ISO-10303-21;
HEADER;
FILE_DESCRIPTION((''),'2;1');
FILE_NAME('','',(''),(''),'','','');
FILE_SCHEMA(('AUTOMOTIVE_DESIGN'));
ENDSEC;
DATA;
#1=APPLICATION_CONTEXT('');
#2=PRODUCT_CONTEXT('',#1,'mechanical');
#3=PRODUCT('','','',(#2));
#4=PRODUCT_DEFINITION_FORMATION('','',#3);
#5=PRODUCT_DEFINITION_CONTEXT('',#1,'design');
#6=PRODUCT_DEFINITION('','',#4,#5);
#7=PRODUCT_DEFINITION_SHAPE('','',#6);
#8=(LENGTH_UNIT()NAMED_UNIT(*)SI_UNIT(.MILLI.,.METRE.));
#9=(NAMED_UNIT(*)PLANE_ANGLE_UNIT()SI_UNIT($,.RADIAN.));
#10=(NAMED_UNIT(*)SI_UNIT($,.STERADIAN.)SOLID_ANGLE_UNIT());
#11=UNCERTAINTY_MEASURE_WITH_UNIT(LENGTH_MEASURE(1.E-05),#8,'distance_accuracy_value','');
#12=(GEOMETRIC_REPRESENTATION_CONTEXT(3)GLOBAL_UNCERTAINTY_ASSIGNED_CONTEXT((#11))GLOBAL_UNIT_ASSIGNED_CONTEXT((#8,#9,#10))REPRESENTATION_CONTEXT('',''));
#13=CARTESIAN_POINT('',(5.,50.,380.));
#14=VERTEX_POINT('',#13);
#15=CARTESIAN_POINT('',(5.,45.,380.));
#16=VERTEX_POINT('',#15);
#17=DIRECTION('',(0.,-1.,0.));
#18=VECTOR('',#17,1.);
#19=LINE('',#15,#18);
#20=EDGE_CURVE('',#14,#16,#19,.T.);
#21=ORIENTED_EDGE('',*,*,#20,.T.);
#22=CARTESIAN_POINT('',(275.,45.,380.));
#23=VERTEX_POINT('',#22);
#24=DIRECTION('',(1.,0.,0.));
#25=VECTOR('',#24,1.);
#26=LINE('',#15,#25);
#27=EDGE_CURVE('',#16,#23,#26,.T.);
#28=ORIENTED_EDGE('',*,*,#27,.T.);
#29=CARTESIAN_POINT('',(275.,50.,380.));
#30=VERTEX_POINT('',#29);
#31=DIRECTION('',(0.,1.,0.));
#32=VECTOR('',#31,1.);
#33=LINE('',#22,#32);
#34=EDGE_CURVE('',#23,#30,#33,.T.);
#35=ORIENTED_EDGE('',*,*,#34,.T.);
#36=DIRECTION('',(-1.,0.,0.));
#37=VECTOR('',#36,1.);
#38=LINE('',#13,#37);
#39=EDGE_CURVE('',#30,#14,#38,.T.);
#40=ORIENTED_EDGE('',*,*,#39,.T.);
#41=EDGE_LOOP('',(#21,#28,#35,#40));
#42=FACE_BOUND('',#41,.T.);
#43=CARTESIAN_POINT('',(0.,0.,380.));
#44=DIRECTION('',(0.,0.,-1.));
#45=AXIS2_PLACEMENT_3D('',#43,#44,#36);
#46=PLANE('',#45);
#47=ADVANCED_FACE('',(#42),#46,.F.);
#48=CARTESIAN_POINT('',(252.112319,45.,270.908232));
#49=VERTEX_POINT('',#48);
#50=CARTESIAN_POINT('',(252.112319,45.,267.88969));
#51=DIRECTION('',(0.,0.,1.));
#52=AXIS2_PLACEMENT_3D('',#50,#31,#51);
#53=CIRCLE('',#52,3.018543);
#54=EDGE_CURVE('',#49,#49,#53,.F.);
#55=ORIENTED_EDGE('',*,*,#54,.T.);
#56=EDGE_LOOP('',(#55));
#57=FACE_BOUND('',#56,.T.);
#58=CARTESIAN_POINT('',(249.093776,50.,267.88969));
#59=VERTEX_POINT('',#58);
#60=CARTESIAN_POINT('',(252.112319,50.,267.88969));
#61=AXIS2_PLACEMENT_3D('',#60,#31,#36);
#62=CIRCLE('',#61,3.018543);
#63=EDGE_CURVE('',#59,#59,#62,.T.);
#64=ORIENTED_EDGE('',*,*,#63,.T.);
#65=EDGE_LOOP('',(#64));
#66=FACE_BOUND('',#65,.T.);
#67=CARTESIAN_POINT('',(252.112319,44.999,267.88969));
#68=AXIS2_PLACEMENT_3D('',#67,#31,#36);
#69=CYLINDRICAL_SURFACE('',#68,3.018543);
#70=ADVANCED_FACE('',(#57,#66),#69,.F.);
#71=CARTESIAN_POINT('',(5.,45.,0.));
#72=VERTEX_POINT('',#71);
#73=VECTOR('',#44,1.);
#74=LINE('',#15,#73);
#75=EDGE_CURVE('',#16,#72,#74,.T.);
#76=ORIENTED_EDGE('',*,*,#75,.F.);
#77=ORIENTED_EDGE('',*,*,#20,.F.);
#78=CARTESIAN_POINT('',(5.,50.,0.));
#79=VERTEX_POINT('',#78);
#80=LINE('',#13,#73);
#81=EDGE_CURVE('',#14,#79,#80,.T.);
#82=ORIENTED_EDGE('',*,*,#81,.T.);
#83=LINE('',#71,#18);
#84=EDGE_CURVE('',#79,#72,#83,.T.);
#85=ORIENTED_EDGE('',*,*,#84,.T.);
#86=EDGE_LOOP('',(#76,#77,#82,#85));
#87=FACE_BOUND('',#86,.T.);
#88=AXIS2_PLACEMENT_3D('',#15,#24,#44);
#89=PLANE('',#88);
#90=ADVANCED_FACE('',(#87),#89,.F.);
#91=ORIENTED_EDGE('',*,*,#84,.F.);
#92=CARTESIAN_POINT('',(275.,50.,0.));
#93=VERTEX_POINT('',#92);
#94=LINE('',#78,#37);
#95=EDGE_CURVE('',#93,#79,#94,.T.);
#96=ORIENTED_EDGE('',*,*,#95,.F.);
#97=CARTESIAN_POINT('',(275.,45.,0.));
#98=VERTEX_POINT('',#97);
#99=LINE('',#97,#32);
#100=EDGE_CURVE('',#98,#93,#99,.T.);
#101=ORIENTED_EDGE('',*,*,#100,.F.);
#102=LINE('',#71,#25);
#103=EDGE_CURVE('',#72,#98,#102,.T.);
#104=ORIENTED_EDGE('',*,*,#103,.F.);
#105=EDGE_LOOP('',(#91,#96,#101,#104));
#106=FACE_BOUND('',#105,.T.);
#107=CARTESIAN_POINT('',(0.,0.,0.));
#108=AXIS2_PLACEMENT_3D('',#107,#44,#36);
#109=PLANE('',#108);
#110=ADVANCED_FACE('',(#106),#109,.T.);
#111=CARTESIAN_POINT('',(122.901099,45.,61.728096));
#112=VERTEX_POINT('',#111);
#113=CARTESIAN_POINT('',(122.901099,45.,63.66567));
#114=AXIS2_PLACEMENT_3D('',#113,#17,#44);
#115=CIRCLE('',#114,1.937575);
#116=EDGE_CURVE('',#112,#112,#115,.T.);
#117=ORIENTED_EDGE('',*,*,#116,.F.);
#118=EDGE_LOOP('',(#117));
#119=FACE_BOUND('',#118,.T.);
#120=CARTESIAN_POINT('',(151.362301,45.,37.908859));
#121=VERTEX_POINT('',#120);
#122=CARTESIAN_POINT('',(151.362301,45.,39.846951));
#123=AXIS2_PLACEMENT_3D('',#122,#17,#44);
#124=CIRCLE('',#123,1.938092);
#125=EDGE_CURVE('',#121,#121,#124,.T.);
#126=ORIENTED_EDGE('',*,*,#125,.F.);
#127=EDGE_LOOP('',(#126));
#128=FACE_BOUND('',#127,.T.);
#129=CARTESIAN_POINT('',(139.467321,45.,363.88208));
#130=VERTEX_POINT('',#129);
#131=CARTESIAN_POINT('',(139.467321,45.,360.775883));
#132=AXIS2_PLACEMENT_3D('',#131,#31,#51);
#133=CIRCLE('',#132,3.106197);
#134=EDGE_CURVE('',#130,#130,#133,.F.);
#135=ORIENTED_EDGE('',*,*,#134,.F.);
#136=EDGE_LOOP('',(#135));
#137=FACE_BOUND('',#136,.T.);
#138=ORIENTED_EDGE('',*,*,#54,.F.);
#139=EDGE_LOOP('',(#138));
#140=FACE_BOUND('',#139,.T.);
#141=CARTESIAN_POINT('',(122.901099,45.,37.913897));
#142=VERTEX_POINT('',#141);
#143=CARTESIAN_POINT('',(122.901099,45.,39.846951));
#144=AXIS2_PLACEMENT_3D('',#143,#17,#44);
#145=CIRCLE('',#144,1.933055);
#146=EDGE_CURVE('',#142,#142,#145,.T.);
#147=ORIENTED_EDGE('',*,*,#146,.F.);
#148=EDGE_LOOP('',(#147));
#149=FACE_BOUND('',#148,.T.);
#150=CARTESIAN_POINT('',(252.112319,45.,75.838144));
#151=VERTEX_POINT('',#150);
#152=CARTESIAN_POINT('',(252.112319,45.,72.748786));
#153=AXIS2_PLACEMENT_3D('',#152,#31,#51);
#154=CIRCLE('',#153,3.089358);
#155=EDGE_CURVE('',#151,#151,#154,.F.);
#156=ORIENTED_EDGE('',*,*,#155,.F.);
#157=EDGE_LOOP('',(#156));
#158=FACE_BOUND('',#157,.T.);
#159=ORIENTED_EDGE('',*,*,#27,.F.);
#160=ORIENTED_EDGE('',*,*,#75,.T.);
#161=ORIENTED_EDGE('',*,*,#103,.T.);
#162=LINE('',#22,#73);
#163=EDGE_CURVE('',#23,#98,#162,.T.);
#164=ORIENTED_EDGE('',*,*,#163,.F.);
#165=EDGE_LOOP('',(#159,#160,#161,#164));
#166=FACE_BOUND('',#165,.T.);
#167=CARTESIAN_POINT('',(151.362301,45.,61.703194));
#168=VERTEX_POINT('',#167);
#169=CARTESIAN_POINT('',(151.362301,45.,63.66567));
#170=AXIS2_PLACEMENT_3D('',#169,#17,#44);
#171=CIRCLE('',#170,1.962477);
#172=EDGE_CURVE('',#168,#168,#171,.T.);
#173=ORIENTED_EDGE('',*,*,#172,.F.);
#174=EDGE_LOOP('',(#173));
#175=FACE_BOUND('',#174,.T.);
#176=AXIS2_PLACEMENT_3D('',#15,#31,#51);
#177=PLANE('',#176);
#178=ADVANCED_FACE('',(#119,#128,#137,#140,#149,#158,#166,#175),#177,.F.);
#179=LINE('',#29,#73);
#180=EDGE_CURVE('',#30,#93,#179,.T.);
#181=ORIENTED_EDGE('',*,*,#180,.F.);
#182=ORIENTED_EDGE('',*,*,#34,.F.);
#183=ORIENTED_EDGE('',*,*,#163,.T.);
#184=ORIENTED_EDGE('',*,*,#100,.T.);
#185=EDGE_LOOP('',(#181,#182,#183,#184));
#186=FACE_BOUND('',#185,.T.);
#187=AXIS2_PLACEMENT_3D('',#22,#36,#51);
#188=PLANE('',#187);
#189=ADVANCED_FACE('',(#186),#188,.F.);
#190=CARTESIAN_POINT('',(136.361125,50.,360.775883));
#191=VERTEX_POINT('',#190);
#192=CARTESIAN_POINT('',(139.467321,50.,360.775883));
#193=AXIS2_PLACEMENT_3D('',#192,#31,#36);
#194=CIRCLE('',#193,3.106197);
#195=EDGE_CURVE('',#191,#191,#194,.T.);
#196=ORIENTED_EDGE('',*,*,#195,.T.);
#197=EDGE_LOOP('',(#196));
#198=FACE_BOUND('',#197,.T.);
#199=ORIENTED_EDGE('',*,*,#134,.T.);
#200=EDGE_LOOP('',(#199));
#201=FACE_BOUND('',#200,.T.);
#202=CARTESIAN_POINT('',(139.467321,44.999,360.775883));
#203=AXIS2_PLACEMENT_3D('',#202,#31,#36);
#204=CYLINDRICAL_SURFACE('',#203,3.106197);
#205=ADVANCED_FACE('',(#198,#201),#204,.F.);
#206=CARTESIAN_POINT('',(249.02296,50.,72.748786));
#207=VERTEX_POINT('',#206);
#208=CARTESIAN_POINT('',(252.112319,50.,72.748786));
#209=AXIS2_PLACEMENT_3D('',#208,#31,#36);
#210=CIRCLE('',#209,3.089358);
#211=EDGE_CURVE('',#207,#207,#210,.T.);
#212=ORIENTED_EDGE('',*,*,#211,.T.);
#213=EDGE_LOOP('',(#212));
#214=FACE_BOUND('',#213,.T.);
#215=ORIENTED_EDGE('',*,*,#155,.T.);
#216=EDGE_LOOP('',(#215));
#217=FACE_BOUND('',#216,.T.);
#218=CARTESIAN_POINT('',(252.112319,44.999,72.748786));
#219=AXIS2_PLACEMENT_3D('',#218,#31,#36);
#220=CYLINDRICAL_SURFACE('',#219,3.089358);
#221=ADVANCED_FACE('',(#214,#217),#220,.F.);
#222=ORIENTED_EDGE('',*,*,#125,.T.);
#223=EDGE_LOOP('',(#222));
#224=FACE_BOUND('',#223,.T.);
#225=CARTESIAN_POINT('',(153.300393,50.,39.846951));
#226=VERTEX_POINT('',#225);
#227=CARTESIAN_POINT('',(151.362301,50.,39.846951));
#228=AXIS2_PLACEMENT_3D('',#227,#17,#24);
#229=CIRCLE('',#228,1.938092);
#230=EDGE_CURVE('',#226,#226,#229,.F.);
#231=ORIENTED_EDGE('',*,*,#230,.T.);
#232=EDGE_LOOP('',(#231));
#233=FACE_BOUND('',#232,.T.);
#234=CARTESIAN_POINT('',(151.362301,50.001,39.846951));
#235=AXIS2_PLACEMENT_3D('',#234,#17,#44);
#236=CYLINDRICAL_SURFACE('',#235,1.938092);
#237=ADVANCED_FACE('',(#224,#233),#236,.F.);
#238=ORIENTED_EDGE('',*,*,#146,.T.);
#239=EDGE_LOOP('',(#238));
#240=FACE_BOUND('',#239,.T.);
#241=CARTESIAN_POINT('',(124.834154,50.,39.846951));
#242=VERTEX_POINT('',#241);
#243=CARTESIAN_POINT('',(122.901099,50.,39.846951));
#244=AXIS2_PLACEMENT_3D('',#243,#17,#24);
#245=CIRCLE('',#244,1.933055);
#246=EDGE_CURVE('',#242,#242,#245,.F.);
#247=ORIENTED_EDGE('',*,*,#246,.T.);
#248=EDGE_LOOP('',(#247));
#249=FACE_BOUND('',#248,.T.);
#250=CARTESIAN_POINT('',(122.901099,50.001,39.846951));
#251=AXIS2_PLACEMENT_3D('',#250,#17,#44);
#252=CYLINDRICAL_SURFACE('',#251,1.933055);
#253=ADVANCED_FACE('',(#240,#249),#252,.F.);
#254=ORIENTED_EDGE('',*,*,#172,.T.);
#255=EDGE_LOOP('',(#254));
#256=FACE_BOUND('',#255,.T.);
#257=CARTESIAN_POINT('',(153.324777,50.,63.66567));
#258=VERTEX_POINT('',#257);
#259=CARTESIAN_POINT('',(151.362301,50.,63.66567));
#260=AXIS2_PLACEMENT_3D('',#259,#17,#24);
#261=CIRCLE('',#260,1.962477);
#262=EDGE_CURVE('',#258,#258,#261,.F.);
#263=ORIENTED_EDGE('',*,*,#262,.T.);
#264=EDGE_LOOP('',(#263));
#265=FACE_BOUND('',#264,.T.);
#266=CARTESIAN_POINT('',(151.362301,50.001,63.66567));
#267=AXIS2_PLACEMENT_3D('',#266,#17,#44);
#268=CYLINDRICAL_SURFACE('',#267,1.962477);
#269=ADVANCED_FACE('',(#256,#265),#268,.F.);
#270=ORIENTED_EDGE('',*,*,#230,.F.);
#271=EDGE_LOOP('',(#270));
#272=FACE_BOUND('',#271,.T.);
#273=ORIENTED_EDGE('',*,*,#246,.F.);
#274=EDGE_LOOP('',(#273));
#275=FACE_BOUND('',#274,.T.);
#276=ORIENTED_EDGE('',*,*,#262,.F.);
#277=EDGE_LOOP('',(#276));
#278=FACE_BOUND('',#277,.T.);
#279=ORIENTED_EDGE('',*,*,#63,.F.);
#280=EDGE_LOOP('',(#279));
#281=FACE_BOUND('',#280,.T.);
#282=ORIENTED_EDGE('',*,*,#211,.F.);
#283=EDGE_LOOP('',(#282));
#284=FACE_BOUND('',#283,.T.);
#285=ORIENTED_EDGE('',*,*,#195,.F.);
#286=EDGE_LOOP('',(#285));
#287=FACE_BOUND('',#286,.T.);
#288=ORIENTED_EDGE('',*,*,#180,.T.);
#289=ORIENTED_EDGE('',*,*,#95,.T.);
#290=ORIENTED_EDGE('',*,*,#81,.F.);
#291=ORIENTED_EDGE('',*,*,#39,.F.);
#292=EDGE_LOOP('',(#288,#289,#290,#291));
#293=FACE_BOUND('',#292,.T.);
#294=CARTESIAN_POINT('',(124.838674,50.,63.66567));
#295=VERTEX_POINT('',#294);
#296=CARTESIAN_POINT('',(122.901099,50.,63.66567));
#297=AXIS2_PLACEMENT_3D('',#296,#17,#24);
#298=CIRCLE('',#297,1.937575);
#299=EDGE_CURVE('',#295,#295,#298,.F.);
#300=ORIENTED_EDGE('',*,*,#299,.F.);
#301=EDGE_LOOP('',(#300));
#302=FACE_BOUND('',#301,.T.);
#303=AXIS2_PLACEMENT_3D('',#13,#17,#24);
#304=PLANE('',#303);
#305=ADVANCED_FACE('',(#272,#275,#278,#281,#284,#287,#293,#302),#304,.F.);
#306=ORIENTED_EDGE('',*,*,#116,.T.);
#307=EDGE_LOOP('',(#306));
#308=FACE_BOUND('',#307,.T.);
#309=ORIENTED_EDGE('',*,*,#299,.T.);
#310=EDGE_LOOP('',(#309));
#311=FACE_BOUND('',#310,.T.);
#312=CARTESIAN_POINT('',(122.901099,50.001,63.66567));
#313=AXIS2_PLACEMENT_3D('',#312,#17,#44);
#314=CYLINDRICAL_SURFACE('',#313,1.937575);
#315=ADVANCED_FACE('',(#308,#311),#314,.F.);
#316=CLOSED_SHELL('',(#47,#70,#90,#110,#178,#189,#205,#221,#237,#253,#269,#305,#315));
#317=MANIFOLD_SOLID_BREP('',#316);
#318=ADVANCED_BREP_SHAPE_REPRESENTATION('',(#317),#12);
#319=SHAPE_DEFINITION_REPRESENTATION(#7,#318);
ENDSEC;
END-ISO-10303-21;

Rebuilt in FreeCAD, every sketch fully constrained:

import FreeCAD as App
import Part
import Sketcher

V = App.Vector

doc = App.newDocument("Part")
params = doc.addObject("Spreadsheet::Sheet", "Params")
for row, (alias, value) in enumerate([
    ("sketch1_width", "270 mm"),
    ("sketch1_height", "5 mm"),
    ("pad1_length", "380 mm"),
], start=1):
    params.set(f"A{row}", alias)
    params.set(f"B{row}", "=" + value)
    params.setAlias(f"B{row}", alias)

body = doc.addObject("PartDesign::Body", "Body")

# Sketch on XY plane
sketch1 = body.newObject("Sketcher::SketchObject", "Sketch")
sketch1.AttachmentSupport = (doc.getObject("XY_Plane"), [""])
sketch1.MapMode = "FlatFace"
sketch1.addGeometry([
    Part.LineSegment(V(5, 50, 0), V(5, 45, 0)),
    Part.LineSegment(V(5, 45, 0), V(275, 45, 0)),
    Part.LineSegment(V(275, 45, 0), V(275, 50, 0)),
    Part.LineSegment(V(275, 50, 0), V(5, 50, 0)),
], False)
sketch1.addConstraint([
    Sketcher.Constraint("Coincident", 0, 2, 1, 1),
    Sketcher.Constraint("Coincident", 1, 2, 2, 1),
    Sketcher.Constraint("Coincident", 2, 2, 3, 1),
    Sketcher.Constraint("Coincident", 3, 2, 0, 1),
    Sketcher.Constraint("Vertical", 0),
    Sketcher.Constraint("Horizontal", 1),
    Sketcher.Constraint("Vertical", 2),
    Sketcher.Constraint("Horizontal", 3),
    Sketcher.Constraint("DistanceX", 1, 1, 1, 2, 270.0),
    Sketcher.Constraint("DistanceY", 0, 2, 0, 1, 5.0),
    Sketcher.Constraint("DistanceX", -1, 1, 0, 2, 5.0),
    Sketcher.Constraint("DistanceY", -1, 1, 0, 2, 45.0),
])
sketch1.setExpression("Constraints[8]", "Params.sketch1_width")
sketch1.setExpression("Constraints[9]", "Params.sketch1_height")
pad1 = body.newObject("PartDesign::Pad", "Pad")
pad1.Profile = sketch1
pad1.setExpression("Length", "Params.pad1_length")

# Sketch on XZ plane
sketch2 = body.newObject("Sketcher::SketchObject", "Sketch001")
sketch2.AttachmentSupport = (doc.getObject("XZ_Plane"), [""])
sketch2.MapMode = "FlatFace"
sketch2.AttachmentOffset = App.Placement(V(0, 0, -45), App.Rotation())
sketch2.addGeometry(Part.Circle(V(122.901099, 39.846951, 0), V(0, 0, 1), 1.933055), False)
sketch2.addConstraint([
    Sketcher.Constraint("Diameter", 0, 3.866109),
    Sketcher.Constraint("DistanceX", -1, 1, 0, 3, 122.901099),
    Sketcher.Constraint("DistanceY", -1, 1, 0, 3, 39.846951),
])
pocket1 = body.newObject("PartDesign::Pocket", "Pocket")
pocket1.Profile = sketch2
pocket1.Type = "UpToFirst"

# Sketch on XZ plane
sketch3 = body.newObject("Sketcher::SketchObject", "Sketch002")
sketch3.AttachmentSupport = (doc.getObject("XZ_Plane"), [""])
sketch3.MapMode = "FlatFace"
sketch3.AttachmentOffset = App.Placement(V(0, 0, -45), App.Rotation())
sketch3.addGeometry(Part.Circle(V(122.901099, 63.66567, 0), V(0, 0, 1), 1.937575), False)
sketch3.addConstraint([
    Sketcher.Constraint("Diameter", 0, 3.875149),
    Sketcher.Constraint("DistanceX", -1, 1, 0, 3, 122.901099),
    Sketcher.Constraint("DistanceY", -1, 1, 0, 3, 63.66567),
])
pocket2 = body.newObject("PartDesign::Pocket", "Pocket001")
pocket2.Profile = sketch3
pocket2.Type = "UpToFirst"

# Sketch on XZ plane
sketch4 = body.newObject("Sketcher::SketchObject", "Sketch003")
sketch4.AttachmentSupport = (doc.getObject("XZ_Plane"), [""])
sketch4.MapMode = "FlatFace"
sketch4.AttachmentOffset = App.Placement(V(0, 0, -45), App.Rotation())
sketch4.addGeometry(Part.Circle(V(151.362301, 39.846951, 0), V(0, 0, 1), 1.938092), False)
sketch4.addConstraint([
    Sketcher.Constraint("Diameter", 0, 3.876185),
    Sketcher.Constraint("DistanceX", -1, 1, 0, 3, 151.362301),
    Sketcher.Constraint("DistanceY", -1, 1, 0, 3, 39.846951),
])
pocket3 = body.newObject("PartDesign::Pocket", "Pocket002")
pocket3.Profile = sketch4
pocket3.Type = "UpToFirst"

# Sketch on XZ plane
sketch5 = body.newObject("Sketcher::SketchObject", "Sketch004")
sketch5.AttachmentSupport = (doc.getObject("XZ_Plane"), [""])
sketch5.MapMode = "FlatFace"
sketch5.AttachmentOffset = App.Placement(V(0, 0, -45), App.Rotation())
sketch5.addGeometry(Part.Circle(V(151.362301, 63.66567, 0), V(0, 0, 1), 1.962477), False)
sketch5.addConstraint([
    Sketcher.Constraint("Diameter", 0, 3.924953),
    Sketcher.Constraint("DistanceX", -1, 1, 0, 3, 151.362301),
    Sketcher.Constraint("DistanceY", -1, 1, 0, 3, 63.66567),
])
pocket4 = body.newObject("PartDesign::Pocket", "Pocket003")
pocket4.Profile = sketch5
pocket4.Type = "UpToFirst"

# Sketch on XZ plane
sketch6 = body.newObject("Sketcher::SketchObject", "Sketch005")
sketch6.AttachmentSupport = (doc.getObject("XZ_Plane"), [""])
sketch6.MapMode = "FlatFace"
sketch6.AttachmentOffset = App.Placement(V(0, 0, -50), App.Rotation())
sketch6.addGeometry(Part.Circle(V(252.112319, 267.88969, 0), V(0, 0, 1), 3.018543), False)
sketch6.addConstraint([
    Sketcher.Constraint("Diameter", 0, 6.037086),
    Sketcher.Constraint("DistanceX", -1, 1, 0, 3, 252.112319),
    Sketcher.Constraint("DistanceY", -1, 1, 0, 3, 267.88969),
])
pocket5 = body.newObject("PartDesign::Pocket", "Pocket004")
pocket5.Profile = sketch6
pocket5.Type = "UpToFirst"
pocket5.Reversed = True

# Sketch on XZ plane
sketch7 = body.newObject("Sketcher::SketchObject", "Sketch006")
sketch7.AttachmentSupport = (doc.getObject("XZ_Plane"), [""])
sketch7.MapMode = "FlatFace"
sketch7.AttachmentOffset = App.Placement(V(0, 0, -50), App.Rotation())
sketch7.addGeometry(Part.Circle(V(252.112319, 72.748786, 0), V(0, 0, 1), 3.089358), False)
sketch7.addConstraint([
    Sketcher.Constraint("Diameter", 0, 6.178717),
    Sketcher.Constraint("DistanceX", -1, 1, 0, 3, 252.112319),
    Sketcher.Constraint("DistanceY", -1, 1, 0, 3, 72.748786),
])
pocket6 = body.newObject("PartDesign::Pocket", "Pocket005")
pocket6.Profile = sketch7
pocket6.Type = "UpToFirst"
pocket6.Reversed = True

# Sketch on XZ plane
sketch8 = body.newObject("Sketcher::SketchObject", "Sketch007")
sketch8.AttachmentSupport = (doc.getObject("XZ_Plane"), [""])
sketch8.MapMode = "FlatFace"
sketch8.AttachmentOffset = App.Placement(V(0, 0, -50), App.Rotation())
sketch8.addGeometry(Part.Circle(V(139.467321, 360.775883, 0), V(0, 0, 1), 3.106197), False)
sketch8.addConstraint([
    Sketcher.Constraint("Diameter", 0, 6.212393),
    Sketcher.Constraint("DistanceX", -1, 1, 0, 3, 139.467321),
    Sketcher.Constraint("DistanceY", -1, 1, 0, 3, 360.775883),
])
pocket7 = body.newObject("PartDesign::Pocket", "Pocket006")
pocket7.Profile = sketch8
pocket7.Type = "UpToFirst"
pocket7.Reversed = True

doc.recompute()
